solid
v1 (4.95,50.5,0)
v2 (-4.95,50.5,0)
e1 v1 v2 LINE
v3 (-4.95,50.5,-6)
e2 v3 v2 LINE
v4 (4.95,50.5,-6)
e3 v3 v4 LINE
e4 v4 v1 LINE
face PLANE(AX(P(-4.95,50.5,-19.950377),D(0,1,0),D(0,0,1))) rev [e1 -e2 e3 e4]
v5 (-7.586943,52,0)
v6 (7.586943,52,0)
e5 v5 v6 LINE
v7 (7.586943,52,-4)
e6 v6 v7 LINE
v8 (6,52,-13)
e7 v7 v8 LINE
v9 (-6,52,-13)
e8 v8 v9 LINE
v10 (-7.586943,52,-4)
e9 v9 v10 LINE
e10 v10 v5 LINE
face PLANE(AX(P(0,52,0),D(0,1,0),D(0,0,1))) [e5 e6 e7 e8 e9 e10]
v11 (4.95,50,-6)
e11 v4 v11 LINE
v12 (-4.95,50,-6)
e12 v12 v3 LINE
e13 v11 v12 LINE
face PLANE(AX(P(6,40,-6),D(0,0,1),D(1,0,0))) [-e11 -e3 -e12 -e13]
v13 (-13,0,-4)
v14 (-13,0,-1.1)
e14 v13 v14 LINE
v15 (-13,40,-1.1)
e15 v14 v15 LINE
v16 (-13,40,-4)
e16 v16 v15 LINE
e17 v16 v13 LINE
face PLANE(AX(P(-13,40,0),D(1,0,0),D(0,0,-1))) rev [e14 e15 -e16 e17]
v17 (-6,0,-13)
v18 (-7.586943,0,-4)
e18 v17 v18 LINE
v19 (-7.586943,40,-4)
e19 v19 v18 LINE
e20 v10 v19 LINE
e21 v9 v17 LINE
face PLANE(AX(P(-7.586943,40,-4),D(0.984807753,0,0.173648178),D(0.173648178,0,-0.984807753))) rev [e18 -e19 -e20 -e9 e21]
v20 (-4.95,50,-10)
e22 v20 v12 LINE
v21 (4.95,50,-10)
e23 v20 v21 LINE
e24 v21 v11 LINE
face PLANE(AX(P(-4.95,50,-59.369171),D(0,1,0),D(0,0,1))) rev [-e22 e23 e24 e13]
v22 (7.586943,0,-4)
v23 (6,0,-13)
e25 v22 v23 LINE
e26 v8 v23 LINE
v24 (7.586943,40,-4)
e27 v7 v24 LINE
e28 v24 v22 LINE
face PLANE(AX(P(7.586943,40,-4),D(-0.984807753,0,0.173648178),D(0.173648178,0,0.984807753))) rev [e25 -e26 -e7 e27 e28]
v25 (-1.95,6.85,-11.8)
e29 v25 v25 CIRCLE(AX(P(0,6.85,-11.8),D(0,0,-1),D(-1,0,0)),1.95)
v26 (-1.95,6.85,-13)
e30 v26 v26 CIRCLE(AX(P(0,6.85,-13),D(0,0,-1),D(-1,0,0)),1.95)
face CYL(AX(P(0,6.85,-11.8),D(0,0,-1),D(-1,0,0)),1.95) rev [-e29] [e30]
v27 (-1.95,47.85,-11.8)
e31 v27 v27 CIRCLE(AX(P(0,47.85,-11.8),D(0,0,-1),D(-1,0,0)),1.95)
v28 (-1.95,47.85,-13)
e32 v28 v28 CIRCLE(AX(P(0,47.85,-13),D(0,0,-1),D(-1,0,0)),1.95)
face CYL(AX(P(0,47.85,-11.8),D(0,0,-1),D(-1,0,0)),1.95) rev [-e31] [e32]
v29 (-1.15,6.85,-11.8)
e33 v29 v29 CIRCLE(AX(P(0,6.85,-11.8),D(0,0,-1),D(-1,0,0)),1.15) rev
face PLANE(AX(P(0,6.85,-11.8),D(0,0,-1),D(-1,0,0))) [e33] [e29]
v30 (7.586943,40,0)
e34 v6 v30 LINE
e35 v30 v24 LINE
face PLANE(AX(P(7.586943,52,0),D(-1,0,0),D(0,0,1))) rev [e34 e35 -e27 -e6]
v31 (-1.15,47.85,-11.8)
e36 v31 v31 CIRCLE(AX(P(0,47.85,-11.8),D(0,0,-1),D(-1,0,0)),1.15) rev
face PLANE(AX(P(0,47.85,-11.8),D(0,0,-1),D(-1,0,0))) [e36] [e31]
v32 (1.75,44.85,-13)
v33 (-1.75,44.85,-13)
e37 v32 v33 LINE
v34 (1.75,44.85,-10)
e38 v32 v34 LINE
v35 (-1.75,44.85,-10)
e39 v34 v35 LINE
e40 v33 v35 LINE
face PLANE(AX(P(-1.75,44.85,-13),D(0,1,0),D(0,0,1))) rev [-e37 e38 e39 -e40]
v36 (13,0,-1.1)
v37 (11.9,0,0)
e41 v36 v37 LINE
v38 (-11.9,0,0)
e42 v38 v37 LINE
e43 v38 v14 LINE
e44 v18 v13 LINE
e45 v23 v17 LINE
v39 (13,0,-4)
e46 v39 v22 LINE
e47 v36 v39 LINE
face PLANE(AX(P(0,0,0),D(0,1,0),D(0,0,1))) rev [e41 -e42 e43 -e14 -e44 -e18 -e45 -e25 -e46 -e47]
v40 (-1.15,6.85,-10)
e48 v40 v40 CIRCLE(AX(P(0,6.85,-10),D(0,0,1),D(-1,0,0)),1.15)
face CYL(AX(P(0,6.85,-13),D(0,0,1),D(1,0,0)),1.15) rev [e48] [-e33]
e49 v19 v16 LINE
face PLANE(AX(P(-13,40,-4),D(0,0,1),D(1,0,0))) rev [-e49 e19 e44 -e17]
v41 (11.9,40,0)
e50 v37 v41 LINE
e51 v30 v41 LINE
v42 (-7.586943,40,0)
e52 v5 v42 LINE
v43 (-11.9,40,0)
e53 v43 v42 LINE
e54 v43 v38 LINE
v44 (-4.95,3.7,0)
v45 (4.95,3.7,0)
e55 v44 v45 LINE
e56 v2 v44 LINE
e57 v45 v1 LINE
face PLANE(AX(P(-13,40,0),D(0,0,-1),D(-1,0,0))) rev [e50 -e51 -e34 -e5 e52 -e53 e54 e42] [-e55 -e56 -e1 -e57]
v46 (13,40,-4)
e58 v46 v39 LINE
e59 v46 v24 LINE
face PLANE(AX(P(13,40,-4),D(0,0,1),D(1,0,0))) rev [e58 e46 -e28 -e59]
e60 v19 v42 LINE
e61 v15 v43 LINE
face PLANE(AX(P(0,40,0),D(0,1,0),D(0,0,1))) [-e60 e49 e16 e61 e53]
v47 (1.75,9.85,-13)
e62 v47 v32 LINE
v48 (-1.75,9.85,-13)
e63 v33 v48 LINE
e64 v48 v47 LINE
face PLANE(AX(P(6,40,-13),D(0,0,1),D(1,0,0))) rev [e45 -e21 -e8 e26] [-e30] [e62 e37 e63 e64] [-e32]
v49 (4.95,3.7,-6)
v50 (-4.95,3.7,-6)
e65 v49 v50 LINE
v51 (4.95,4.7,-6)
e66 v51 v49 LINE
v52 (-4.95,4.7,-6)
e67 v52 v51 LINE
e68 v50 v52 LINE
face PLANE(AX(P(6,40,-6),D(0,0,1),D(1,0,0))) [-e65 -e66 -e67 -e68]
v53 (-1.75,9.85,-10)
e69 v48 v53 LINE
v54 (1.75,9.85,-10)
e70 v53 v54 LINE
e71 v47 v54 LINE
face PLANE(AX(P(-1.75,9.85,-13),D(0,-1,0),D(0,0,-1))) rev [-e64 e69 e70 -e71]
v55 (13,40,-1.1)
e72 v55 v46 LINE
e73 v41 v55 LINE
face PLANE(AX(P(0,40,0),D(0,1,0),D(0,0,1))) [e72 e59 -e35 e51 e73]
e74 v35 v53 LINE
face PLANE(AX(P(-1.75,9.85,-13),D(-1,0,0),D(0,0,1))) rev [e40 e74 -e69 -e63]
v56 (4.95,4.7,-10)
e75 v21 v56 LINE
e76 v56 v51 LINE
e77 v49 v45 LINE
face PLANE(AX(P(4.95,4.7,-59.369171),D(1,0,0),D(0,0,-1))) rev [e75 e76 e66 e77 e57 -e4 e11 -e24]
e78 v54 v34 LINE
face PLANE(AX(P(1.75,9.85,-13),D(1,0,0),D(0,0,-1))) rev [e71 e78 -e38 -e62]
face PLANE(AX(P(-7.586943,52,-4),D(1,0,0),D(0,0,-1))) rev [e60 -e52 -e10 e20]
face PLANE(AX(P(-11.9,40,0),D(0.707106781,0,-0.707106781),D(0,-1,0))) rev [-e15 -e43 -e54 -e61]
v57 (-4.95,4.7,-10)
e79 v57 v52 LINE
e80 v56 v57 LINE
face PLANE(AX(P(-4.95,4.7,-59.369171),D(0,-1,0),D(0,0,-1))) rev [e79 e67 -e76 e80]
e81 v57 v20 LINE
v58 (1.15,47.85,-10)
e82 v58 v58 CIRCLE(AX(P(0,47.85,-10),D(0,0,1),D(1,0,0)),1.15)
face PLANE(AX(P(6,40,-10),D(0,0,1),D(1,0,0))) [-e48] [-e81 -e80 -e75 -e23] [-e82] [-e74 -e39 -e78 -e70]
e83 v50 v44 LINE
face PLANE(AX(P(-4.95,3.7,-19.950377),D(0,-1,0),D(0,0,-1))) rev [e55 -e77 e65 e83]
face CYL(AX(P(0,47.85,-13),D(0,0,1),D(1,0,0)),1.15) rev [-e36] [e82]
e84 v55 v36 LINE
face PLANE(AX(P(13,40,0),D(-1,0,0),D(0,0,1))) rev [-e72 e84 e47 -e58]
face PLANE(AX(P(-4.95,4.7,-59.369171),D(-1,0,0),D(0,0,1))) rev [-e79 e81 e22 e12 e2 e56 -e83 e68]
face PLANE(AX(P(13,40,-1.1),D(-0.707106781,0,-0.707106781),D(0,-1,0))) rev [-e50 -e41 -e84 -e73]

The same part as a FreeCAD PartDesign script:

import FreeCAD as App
import Part
import Sketcher
Q = App.Units.Quantity


def edges_at(feature, points):
    """Names of the edges that pass closest to the given points."""
    edges = feature.Shape.Edges
    near = lambda p: min(range(len(edges)), key=lambda i: edges[i].distToShape(Part.Vertex(*p))[0])
    return sorted({f"Edge{near(p) + 1}" for p in points})


def add_polygon(sketch, points):
    """Adds a closed chain of lines whose ends are joined by coincident constraints."""
    first, n = sketch.GeometryCount, len(points)
    for a, b in zip(points, points[1:] + points[:1]):
        sketch.addGeometry(Part.LineSegment(App.Vector(*a, 0), App.Vector(*b, 0)), False)
    for i in range(n):
        sketch.addConstraint(Sketcher.Constraint("Coincident", first + i, 2, first + (i + 1) % n, 1))

doc = App.newDocument("Part")
body = doc.addObject("PartDesign::Body", "Body")

# Sketch on XZ plane
sketch1 = doc.addObject("Sketcher::SketchObject", "Sketch")
body.addObject(sketch1)
sketch1.AttachmentSupport = (doc.XZ_Plane, [""])
sketch1.MapMode = "FlatFace"
add_polygon(sketch1, [(-13, 0), (13, 0), (13, -4), (7.6, -4), (6, -13), (-6, -13), (-7.6, -4), (-13, -4)])  # lines 0-7
sketch1.addConstraint([
    Sketcher.Constraint("Horizontal", 0),
    Sketcher.Constraint("Vertical", 1),
    Sketcher.Constraint("Horizontal", 2),
    Sketcher.Constraint("Horizontal", 4),
    Sketcher.Constraint("Horizontal", 6),
    Sketcher.Constraint("Vertical", 7),
    Sketcher.Constraint("Symmetric", 0, 2, 7, 2, -1, 1),
    Sketcher.Constraint("Symmetric", 2, 2, 5, 2, -2),
    Sketcher.Constraint("Equal", 3, 5),
    Sketcher.Constraint("DistanceX", 0, 1, 0, 2, Q("26 mm")),
    Sketcher.Constraint("DistanceX", 4, 2, 4, 1, Q("12 mm")),
    Sketcher.Constraint("DistanceY", 1, 2, 1, 1, Q("4 mm")),
    Sketcher.Constraint("Angle", 3, Q("-100 deg")),
    Sketcher.Constraint("DistanceY", 3, 2, -1, 1, Q("13 mm")),
])
pad1 = doc.addObject("PartDesign::Pad", "Pad")
body.addObject(pad1)
pad1.Profile = sketch1
pad1.Length = 40
pad1.Reversed = True

# Sketch on XZ plane
sketch2 = doc.addObject("Sketcher::SketchObject", "Sketch001")
body.addObject(sketch2)
sketch2.AttachmentSupport = (doc.XZ_Plane, [""])
sketch2.MapMode = "FlatFace"
sketch2.AttachmentOffset = App.Placement(App.Vector(0, 0, -40), App.Rotation())
add_polygon(sketch2, [(7.6, -4), (6, -13), (-6, -13), (-7.6, -4), (-7.6, 0), (7.6, 0)])  # lines 0-5
sketch2.addConstraint([
    Sketcher.Constraint("Horizontal", 1),
    Sketcher.Constraint("Vertical", 3),
    Sketcher.Constraint("Horizontal", 4),
    Sketcher.Constraint("Vertical", 5),
    Sketcher.Constraint("Symmetric", 3, 2, 4, 2, -1, 1),
    Sketcher.Constraint("Horizontal", 2, 2, 5, 2),
    Sketcher.Constraint("Equal", 0, 2),
    Sketcher.Constraint("DistanceX", 1, 2, 1, 1, Q("12 mm")),
    Sketcher.Constraint("DistanceY", 3, 1, 3, 2, Q("4 mm")),
    Sketcher.Constraint("Angle", 0, Q("-100 deg")),
    Sketcher.Constraint("DistanceY", 0, 2, -1, 1, Q("13 mm")),
])
pad2 = doc.addObject("PartDesign::Pad", "Pad001")
body.addObject(pad2)
pad2.Profile = sketch2
pad2.Length = 12
pad2.Reversed = True
doc.recompute()

chamfer = doc.addObject("PartDesign::Chamfer", "Chamfer")
body.addObject(chamfer)
chamfer.Base = (pad2, edges_at(pad2, [(13, 20, 0), (-13, 20, 0)]))
chamfer.Size = 1.1

# Sketch on XY plane
sketch3 = doc.addObject("Sketcher::SketchObject", "Sketch002")
body.addObject(sketch3)
sketch3.AttachmentSupport = (doc.XY_Plane, [""])
sketch3.MapMode = "FlatFace"
add_polygon(sketch3, [(-5, 50), (-5, 5), (5, 5), (5, 50)])  # lines 0-3
sketch3.addConstraint([
    Sketcher.Constraint("Vertical", 0),
    Sketcher.Constraint("Horizontal", 1),
    Sketcher.Constraint("Vertical", 2),
    Sketcher.Constraint("Horizontal", 3),
    Sketcher.Constraint("DistanceX", 1, 1, 1, 2, Q("9.9 mm")),
    Sketcher.Constraint("DistanceY", 0, 2, 0, 1, Q("45.3 mm")),
    Sketcher.Constraint("DistanceY", -1, 1, 2, 2, Q("50 mm")),
    Sketcher.Constraint("DistanceX", 0, 2, -1, 1, Q("4.95 mm")),
])
pocket1 = doc.addObject("PartDesign::Pocket", "Pocket")
body.addObject(pocket1)
pocket1.Profile = sketch3
pocket1.Length = 10

# Sketch on XY plane
sketch4 = doc.addObject("Sketcher::SketchObject", "Sketch003")
body.addObject(sketch4)
sketch4.AttachmentSupport = (doc.XY_Plane, [""])
sketch4.MapMode = "FlatFace"
sketch4.AttachmentOffset = App.Placement(App.Vector(0, 0, -10), App.Rotation())
add_polygon(sketch4, [(-1.8, 44.9), (-1.8, 9.8), (1.8, 9.8), (1.8, 44.9)])  # lines 0-3
sketch4.addConstraint([
    Sketcher.Constraint("Vertical", 0),
    Sketcher.Constraint("Horizontal", 1),
    Sketcher.Constraint("Vertical", 2),
    Sketcher.Constraint("Horizontal", 3),
    Sketcher.Constraint("DistanceY", 0, 2, 0, 1, Q("35 mm")),
    Sketcher.Constraint("DistanceX", 1, 1, 1, 2, Q("3.5 mm")),
    Sketcher.Constraint("DistanceX", 0, 2, -1, 1, Q("1.75 mm")),
    Sketcher.Constraint("DistanceY", -1, 1, 0, 2, Q("9.85 mm")),
])
pocket2 = doc.addObject("PartDesign::Pocket", "Pocket001")
body.addObject(pocket2)
pocket2.Profile = sketch4
pocket2.Type = "ThroughAll"

# Sketch on XY plane
sketch5 = doc.addObject("Sketcher::SketchObject", "Sketch004")
body.addObject(sketch5)
sketch5.AttachmentSupport = (doc.XY_Plane, [""])
sketch5.MapMode = "FlatFace"
add_polygon(sketch5, [(-5, 50.5), (-5, 50), (5, 50), (5, 50.5)])  # lines 0-3
add_polygon(sketch5, [(-5, 4.7), (-5, 3.7), (5, 3.7), (5, 4.7)])  # lines 4-7
sketch5.addConstraint([
    Sketcher.Constraint("Vertical", 0),
    Sketcher.Constraint("Horizontal", 1),
    Sketcher.Constraint("Vertical", 2),
    Sketcher.Constraint("Horizontal", 3),
    Sketcher.Constraint("Vertical", 4),
    Sketcher.Constraint("Horizontal", 5),
    Sketcher.Constraint("Vertical", 6),
    Sketcher.Constraint("Horizontal", 7),
    Sketcher.Constraint("Vertical", 3, 2, 4, 2),
    Sketcher.Constraint("Vertical", 2, 2, 5, 2),
    Sketcher.Constraint("DistanceY", 4, 2, 4, 1, Q("1 mm")),
    Sketcher.Constraint("DistanceX", 1, 1, 1, 2, Q("9.9 mm")),
    Sketcher.Constraint("DistanceY", 0, 2, 0, 1, Q("0.5 mm")),
    Sketcher.Constraint("DistanceY", -1, 1, 0, 2, Q("50 mm")),
    Sketcher.Constraint("DistanceY", -1, 1, 4, 2, Q("3.7 mm")),
    Sketcher.Constraint("DistanceX", 0, 2, -1, 1, Q("4.95 mm")),
])
pocket3 = doc.addObject("PartDesign::Pocket", "Pocket002")
body.addObject(pocket3)
pocket3.Profile = sketch5
pocket3.Length = 6

# Sketch on XY plane
sketch6 = doc.addObject("Sketcher::SketchObject", "Sketch005")
body.addObject(sketch6)
sketch6.AttachmentSupport = (doc.XY_Plane, [""])
sketch6.MapMode = "FlatFace"
sketch6.AttachmentOffset = App.Placement(App.Vector(0, 0, -10), App.Rotation())
sketch6.addGeometry([
    Part.Circle(App.Vector(0, 47.9, 0), App.Vector(0, 0, 1), 1.1),
    Part.Circle(App.Vector(0, 6.8, 0), App.Vector(0, 0, 1), 1.1),
], False)
sketch6.addConstraint([
    Sketcher.Constraint("Equal", 0, 1),
    Sketcher.Constraint("PointOnObject", 0, 3, -2),
    Sketcher.Constraint("PointOnObject", 1, 3, -2),
    Sketcher.Constraint("Diameter", 0, Q("2.3 mm")),
    Sketcher.Constraint("DistanceY", 1, 3, 0, 3, Q("41 mm")),
    Sketcher.Constraint("DistanceY", -1, 1, 0, 3, Q("47.85 mm")),
])
pocket4 = doc.addObject("PartDesign::Pocket", "Pocket003")
body.addObject(pocket4)
pocket4.Profile = sketch6
pocket4.Type = "ThroughAll"

# Sketch on XY plane
sketch7 = doc.addObject("Sketcher::SketchObject", "Sketch006")
body.addObject(sketch7)
sketch7.AttachmentSupport = (doc.XY_Plane, [""])
sketch7.MapMode = "FlatFace"
sketch7.AttachmentOffset = App.Placement(App.Vector(0, 0, -13), App.Rotation())
sketch7.addGeometry([
    Part.Circle(App.Vector(0, 47.9, 0), App.Vector(0, 0, 1), 1.9),
    Part.Circle(App.Vector(0, 6.8, 0), App.Vector(0, 0, 1), 1.9),
], False)
sketch7.addConstraint([
    Sketcher.Constraint("Equal", 0, 1),
    Sketcher.Constraint("PointOnObject", 0, 3, -2),
    Sketcher.Constraint("PointOnObject", 1, 3, -2),
    Sketcher.Constraint("Diameter", 0, Q("3.9 mm")),
    Sketcher.Constraint("DistanceY", 1, 3, 0, 3, Q("41 mm")),
    Sketcher.Constraint("DistanceY", -1, 1, 0, 3, Q("47.85 mm")),
])
pocket5 = doc.addObject("PartDesign::Pocket", "Pocket004")
body.addObject(pocket5)
pocket5.Profile = sketch7
pocket5.Length = 1.2
pocket5.Reversed = True

doc.recompute()
